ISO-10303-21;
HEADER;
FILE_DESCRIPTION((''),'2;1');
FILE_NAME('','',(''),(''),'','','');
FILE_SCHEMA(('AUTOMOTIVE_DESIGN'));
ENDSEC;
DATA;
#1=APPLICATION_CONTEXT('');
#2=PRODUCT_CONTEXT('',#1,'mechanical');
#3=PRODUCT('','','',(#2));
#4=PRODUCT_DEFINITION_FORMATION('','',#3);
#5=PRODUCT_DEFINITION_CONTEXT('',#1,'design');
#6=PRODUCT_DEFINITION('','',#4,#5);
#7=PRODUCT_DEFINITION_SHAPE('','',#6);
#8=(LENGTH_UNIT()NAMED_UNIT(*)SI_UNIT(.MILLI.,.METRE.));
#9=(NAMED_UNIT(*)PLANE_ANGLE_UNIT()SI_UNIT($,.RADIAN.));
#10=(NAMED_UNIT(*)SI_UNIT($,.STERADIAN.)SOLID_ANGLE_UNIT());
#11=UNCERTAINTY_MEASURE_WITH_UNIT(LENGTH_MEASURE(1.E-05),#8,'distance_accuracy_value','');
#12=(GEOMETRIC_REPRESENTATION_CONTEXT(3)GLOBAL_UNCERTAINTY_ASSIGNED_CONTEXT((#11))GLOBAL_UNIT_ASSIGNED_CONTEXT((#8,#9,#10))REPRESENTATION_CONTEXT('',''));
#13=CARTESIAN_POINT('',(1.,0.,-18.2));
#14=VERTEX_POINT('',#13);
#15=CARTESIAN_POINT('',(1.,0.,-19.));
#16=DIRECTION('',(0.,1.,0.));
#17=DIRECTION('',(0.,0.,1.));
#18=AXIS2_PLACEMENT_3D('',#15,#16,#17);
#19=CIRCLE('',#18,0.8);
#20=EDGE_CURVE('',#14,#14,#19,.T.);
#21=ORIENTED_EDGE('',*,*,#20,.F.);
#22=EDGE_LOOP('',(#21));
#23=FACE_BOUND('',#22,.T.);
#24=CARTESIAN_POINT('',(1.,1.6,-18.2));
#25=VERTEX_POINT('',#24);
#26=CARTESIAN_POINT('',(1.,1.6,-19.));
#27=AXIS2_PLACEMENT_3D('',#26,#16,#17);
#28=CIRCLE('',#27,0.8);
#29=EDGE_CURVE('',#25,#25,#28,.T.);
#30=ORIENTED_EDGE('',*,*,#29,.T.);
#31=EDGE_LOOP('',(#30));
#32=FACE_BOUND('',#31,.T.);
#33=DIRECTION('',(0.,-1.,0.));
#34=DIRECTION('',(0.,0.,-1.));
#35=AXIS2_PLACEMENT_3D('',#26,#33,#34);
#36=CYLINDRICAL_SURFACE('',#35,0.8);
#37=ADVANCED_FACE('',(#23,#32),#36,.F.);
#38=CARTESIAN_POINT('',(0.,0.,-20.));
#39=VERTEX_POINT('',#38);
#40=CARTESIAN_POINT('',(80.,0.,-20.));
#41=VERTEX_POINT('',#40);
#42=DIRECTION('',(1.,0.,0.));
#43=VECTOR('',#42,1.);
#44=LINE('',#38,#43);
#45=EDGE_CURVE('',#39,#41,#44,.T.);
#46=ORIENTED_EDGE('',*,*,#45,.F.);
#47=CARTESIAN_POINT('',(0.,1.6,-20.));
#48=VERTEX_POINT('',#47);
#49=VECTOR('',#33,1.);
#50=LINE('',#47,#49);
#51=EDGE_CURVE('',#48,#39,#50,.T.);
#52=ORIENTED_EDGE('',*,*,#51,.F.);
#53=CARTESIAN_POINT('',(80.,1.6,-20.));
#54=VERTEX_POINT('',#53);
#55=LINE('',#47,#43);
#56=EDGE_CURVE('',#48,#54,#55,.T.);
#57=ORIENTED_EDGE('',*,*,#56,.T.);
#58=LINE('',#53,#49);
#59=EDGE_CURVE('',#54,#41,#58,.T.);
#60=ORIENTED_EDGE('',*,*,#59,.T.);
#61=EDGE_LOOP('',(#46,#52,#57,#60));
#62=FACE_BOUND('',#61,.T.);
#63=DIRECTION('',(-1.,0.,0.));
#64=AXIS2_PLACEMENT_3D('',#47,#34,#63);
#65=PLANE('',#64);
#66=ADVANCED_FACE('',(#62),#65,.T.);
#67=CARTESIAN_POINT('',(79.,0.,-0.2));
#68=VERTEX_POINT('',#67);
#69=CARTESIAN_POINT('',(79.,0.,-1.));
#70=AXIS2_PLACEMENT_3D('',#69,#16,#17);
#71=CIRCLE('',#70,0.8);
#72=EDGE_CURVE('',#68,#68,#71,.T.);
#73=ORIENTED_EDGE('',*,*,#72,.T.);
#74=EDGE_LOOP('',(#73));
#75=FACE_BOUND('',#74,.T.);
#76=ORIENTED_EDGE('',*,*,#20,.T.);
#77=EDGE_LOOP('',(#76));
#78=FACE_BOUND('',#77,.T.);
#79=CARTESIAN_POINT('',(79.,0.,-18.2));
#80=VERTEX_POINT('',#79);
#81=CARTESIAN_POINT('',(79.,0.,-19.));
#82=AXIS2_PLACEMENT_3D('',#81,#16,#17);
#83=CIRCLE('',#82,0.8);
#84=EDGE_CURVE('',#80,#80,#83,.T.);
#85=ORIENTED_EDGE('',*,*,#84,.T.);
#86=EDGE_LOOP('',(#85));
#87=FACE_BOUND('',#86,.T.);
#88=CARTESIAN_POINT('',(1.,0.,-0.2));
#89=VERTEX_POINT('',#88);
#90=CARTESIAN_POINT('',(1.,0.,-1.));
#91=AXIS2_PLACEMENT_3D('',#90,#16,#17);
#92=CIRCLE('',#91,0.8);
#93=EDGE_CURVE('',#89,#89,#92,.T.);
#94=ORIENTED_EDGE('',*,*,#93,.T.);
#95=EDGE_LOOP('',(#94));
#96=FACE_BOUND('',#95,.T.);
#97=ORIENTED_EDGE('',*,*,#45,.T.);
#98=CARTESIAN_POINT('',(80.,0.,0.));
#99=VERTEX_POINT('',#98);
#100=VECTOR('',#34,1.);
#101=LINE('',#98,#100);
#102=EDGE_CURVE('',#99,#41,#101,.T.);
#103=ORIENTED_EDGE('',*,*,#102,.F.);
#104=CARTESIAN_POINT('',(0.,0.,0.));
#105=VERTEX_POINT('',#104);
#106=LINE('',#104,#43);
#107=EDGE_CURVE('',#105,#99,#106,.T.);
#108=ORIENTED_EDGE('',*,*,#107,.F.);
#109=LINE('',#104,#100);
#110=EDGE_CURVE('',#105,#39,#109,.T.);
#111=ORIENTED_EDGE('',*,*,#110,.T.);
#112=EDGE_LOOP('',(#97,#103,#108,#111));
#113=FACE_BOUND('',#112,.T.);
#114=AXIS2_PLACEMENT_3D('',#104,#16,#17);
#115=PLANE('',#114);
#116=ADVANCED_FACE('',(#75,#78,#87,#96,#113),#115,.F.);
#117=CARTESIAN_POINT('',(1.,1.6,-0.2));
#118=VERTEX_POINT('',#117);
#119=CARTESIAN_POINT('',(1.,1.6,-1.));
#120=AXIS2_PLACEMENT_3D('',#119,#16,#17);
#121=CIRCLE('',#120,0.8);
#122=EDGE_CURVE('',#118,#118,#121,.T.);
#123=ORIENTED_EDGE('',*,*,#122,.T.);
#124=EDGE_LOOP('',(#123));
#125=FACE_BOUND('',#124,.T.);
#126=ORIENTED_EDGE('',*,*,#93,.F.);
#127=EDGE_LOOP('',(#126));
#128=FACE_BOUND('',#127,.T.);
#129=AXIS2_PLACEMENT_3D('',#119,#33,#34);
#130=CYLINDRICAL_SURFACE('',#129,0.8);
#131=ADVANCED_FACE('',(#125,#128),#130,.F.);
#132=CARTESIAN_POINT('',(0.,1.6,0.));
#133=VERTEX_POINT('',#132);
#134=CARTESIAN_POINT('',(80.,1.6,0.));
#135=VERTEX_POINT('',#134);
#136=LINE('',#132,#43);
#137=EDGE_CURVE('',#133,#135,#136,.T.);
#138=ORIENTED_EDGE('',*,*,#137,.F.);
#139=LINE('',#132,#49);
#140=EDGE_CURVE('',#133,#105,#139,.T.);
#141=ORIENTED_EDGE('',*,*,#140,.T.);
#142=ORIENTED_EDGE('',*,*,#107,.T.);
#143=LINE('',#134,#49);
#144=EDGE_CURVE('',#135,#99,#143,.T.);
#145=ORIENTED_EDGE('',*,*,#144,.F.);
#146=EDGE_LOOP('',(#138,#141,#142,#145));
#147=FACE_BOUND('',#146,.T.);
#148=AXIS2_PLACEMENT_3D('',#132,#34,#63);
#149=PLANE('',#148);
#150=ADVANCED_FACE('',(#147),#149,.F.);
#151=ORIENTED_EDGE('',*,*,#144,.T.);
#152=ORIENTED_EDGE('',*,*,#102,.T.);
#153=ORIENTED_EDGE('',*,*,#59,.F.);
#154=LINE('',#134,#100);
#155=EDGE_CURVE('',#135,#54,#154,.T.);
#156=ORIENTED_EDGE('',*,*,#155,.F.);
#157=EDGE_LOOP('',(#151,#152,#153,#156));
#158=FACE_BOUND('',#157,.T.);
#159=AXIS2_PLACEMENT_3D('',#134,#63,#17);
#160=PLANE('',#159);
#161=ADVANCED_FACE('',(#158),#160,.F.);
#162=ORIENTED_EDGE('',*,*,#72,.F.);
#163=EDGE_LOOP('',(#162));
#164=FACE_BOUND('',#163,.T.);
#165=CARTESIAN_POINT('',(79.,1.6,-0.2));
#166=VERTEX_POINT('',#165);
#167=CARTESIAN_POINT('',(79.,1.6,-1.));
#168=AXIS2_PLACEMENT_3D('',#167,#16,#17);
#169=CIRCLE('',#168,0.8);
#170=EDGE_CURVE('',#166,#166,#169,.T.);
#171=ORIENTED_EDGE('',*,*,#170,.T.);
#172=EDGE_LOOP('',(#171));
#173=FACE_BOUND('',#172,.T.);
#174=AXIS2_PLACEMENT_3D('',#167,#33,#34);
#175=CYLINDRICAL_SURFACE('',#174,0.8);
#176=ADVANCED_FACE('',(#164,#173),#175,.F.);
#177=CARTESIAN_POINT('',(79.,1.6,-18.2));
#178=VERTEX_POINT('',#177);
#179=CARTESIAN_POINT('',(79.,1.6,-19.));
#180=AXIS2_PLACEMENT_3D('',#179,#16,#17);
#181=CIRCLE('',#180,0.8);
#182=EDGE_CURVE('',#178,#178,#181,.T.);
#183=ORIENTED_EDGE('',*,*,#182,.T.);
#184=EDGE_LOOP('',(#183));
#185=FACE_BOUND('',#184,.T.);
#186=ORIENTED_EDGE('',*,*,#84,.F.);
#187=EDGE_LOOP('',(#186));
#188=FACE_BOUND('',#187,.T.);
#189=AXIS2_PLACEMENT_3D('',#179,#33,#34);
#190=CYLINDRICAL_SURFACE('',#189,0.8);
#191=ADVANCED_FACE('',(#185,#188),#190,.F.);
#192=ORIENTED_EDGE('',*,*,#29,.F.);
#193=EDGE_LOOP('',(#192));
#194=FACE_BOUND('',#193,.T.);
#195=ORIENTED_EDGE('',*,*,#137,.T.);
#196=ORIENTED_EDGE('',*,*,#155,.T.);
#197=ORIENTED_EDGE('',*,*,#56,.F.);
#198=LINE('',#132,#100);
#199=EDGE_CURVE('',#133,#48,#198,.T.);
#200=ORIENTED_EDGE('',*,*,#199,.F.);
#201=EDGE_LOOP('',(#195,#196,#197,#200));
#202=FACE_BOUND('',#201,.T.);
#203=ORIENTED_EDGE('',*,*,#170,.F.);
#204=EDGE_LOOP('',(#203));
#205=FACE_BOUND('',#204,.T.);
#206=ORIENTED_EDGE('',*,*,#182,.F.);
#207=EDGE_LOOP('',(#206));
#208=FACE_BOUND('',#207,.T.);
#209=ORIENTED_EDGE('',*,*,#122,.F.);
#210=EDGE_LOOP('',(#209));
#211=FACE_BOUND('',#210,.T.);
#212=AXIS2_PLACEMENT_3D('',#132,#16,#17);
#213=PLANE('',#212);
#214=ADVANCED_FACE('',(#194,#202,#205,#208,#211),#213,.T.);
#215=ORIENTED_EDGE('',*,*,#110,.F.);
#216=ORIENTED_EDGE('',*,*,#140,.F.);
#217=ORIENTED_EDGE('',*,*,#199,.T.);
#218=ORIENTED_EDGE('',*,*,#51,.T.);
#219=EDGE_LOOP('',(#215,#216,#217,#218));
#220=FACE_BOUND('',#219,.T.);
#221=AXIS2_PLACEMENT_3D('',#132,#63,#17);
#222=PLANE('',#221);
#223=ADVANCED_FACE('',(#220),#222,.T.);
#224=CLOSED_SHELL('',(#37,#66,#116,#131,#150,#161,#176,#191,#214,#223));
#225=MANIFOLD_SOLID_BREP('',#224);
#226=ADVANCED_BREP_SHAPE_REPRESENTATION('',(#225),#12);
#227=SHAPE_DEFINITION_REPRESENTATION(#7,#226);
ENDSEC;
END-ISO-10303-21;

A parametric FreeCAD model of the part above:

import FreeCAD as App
import Part
import Sketcher
from FreeCAD import Vector
Q = App.Units.Quantity

doc = App.newDocument("Part")
body = doc.addObject("PartDesign::Body", "Body")

# Sketch on XZ plane
sketch1 = doc.addObject("Sketcher::SketchObject", "Sketch")
body.addObject(sketch1)
sketch1.AttachmentSupport = (doc.XZ_Plane, [""])
sketch1.MapMode = "FlatFace"
sketch1.addGeometry([
    Part.LineSegment(Vector(0, -20, 0), Vector(0, 0, 0)),  # 0
    Part.LineSegment(Vector(0, 0, 0), Vector(80, 0, 0)),  # 1
    Part.LineSegment(Vector(80, 0, 0), Vector(80, -20, 0)),  # 2
    Part.LineSegment(Vector(80, -20, 0), Vector(0, -20, 0)),  # 3
    Part.Circle(Vector(1, -1, 0), Vector(0, 0, 1), 0.8),  # 4
    Part.Circle(Vector(79, -1, 0), Vector(0, 0, 1), 0.8),  # 5
    Part.Circle(Vector(1, -19, 0), Vector(0, 0, 1), 0.8),  # 6
    Part.Circle(Vector(79, -19, 0), Vector(0, 0, 1), 0.8),  # 7
], False)
sketch1.addConstraint([
    Sketcher.Constraint("Coincident", 0, 2, 1, 1),
    Sketcher.Constraint("Coincident", 1, 2, 2, 1),
    Sketcher.Constraint("Coincident", 2, 2, 3, 1),
    Sketcher.Constraint("Coincident", 3, 2, 0, 1),
    Sketcher.Constraint("Vertical", 0),
    Sketcher.Constraint("Horizontal", 1),
    Sketcher.Constraint("Vertical", 2),
    Sketcher.Constraint("Horizontal", 3),
    Sketcher.Constraint("Coincident", 0, 2, -1, 1),
    Sketcher.Constraint("Equal", 4, 5),
    Sketcher.Constraint("Equal", 5, 6),
    Sketcher.Constraint("Equal", 6, 7),
    Sketcher.Constraint("Horizontal", 4, 3, 5, 3),
    Sketcher.Constraint("Horizontal", 6, 3, 7, 3),
    Sketcher.Constraint("Vertical", 4, 3, 6, 3),
    Sketcher.Constraint("Vertical", 5, 3, 7, 3),
    Sketcher.Constraint("Diameter", 4, Q("1.6 mm")),
    Sketcher.Constraint("DistanceX", 1, 1, 1, 2, Q("80 mm")),
    Sketcher.Constraint("DistanceY", 0, 1, 0, 2, Q("20 mm")),
    Sketcher.Constraint("DistanceX", -1, 1, 4, 3, Q("1 mm")),
    Sketcher.Constraint("DistanceY", 4, 3, -1, 1, Q("1 mm")),
    Sketcher.Constraint("DistanceX", -1, 1, 5, 3, Q("79 mm")),
    Sketcher.Constraint("DistanceY", 6, 3, -1, 1, Q("19 mm")),
])
pad1 = doc.addObject("PartDesign::Pad", "Pad")
body.addObject(pad1)
pad1.Profile = sketch1
pad1.Length = 1.6
pad1.Reversed = True

doc.recompute()
